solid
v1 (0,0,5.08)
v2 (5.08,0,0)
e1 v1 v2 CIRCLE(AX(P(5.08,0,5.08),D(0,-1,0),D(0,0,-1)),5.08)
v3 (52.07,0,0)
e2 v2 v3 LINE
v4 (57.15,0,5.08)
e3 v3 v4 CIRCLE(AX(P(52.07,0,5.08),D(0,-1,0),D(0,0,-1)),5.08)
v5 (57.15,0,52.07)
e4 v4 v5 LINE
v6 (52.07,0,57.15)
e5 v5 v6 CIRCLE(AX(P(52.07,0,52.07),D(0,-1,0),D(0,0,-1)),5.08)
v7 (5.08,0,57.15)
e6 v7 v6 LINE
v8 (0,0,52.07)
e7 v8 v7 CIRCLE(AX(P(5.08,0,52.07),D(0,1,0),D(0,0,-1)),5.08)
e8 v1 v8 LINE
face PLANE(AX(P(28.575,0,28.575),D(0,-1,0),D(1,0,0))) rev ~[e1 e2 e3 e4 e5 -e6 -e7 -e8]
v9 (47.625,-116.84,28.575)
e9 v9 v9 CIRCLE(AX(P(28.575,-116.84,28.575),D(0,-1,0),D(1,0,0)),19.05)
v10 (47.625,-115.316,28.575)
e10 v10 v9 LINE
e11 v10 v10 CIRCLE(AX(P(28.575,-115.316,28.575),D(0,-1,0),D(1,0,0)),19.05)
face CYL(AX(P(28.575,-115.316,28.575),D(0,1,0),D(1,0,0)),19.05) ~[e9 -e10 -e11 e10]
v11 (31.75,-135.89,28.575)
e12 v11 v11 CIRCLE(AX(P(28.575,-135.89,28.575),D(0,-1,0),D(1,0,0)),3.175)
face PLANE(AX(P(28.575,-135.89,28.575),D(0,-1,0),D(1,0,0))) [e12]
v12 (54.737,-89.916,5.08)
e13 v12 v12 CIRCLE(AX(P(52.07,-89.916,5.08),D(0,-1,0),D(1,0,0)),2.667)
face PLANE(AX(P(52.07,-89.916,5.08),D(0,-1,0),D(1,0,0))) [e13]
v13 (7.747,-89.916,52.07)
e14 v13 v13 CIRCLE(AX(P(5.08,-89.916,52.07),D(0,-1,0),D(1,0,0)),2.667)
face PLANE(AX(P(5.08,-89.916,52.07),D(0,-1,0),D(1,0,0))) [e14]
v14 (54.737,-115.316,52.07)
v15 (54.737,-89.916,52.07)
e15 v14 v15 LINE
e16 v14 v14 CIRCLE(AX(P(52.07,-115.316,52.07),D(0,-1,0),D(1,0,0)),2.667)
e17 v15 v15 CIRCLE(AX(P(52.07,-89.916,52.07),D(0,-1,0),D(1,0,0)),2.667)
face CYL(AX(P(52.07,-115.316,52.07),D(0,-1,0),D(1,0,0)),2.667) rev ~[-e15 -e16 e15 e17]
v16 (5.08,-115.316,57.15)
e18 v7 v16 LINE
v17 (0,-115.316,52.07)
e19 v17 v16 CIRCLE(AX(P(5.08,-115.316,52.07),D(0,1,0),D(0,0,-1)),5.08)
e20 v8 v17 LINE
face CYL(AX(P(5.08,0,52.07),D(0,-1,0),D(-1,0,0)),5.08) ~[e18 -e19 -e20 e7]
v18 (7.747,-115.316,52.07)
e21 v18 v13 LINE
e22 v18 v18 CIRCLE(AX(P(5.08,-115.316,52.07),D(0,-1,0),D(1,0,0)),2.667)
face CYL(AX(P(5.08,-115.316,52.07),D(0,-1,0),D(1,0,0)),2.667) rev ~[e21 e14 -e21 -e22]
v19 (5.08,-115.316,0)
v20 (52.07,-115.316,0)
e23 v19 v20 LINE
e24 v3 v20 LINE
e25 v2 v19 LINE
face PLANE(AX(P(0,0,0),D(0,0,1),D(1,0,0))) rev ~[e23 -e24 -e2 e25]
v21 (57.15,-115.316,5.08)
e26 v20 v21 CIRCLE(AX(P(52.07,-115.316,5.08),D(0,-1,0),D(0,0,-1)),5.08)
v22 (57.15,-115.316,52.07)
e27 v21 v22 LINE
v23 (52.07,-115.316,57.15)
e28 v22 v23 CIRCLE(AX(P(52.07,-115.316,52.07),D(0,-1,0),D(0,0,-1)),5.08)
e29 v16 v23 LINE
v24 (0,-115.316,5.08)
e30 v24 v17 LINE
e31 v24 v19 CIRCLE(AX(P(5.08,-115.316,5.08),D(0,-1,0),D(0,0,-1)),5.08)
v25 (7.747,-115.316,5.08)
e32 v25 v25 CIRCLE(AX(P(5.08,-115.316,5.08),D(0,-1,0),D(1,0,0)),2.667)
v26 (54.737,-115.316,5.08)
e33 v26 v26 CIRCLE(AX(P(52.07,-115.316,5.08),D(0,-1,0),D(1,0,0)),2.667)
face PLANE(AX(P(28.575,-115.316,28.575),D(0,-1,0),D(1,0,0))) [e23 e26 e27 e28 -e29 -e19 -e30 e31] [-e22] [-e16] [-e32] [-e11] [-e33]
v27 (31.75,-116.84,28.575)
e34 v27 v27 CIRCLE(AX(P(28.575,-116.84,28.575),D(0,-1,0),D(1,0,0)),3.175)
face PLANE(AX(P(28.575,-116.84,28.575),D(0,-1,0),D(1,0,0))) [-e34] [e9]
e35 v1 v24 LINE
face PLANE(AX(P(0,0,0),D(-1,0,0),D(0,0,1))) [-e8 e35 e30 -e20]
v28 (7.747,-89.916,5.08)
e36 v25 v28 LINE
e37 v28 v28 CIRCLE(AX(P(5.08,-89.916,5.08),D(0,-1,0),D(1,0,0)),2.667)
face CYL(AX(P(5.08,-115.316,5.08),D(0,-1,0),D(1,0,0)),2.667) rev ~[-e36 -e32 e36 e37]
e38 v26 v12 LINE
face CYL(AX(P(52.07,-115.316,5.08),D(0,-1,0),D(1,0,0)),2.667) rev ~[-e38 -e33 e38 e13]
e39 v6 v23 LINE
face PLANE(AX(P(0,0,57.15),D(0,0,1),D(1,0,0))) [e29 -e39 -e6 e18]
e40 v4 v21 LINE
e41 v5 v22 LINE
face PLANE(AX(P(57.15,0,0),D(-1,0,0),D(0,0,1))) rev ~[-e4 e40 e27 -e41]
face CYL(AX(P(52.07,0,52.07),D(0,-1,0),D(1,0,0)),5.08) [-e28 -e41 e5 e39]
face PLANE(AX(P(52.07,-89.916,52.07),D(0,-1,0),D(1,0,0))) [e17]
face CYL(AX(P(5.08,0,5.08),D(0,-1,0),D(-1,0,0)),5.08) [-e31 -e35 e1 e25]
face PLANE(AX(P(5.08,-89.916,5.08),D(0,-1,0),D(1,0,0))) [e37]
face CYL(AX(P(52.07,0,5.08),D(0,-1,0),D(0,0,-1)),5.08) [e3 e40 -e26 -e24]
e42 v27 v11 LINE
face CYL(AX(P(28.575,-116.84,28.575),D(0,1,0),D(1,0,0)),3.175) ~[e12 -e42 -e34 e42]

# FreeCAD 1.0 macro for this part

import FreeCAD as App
import Part
import Sketcher
Q = App.Units.Quantity


def edges_at(feature, points):
    """Names of the edges that pass closest to the given points."""
    edges = feature.Shape.Edges
    near = lambda p: min(range(len(edges)), key=lambda i: edges[i].distToShape(Part.Vertex(*p))[0])
    return sorted({f"Edge{near(p) + 1}" for p in points})


def add_polygon(sketch, points):
    """Adds a closed chain of lines whose ends are joined by coincident constraints."""
    first, n = sketch.GeometryCount, len(points)
    for a, b in zip(points, points[1:] + points[:1]):
        sketch.addGeometry(Part.LineSegment(App.Vector(*a, 0), App.Vector(*b, 0)), False)
    for i in range(n):
        sketch.addConstraint(Sketcher.Constraint("Coincident", first + i, 2, first + (i + 1) % n, 1))

doc = App.newDocument("Part")
body = doc.addObject("PartDesign::Body", "Body")

# Sketch on XZ plane
sketch1 = doc.addObject("Sketcher::SketchObject", "Sketch")
body.addObject(sketch1)
sketch1.AttachmentSupport = (doc.XZ_Plane, [""])
sketch1.MapMode = "FlatFace"
add_polygon(sketch1, [(0, 57), (0, 0), (57, 0), (57, 57)])  # lines 0-3
sketch1.addConstraint([
    Sketcher.Constraint("Vertical", 0),
    Sketcher.Constraint("Horizontal", 1),
    Sketcher.Constraint("Vertical", 2),
    Sketcher.Constraint("Horizontal", 3),
    Sketcher.Constraint("Coincident", 0, 2, -1, 1),
    Sketcher.Constraint("Equal", 3, 0),
    Sketcher.Constraint("DistanceX", 1, 1, 1, 2, Q("2.25 in")),
])
pad1 = doc.addObject("PartDesign::Pad", "Pad")
body.addObject(pad1)
pad1.Profile = sketch1
pad1.Length = Q("4.54 in")
doc.recompute()

fillet = doc.addObject("PartDesign::Fillet", "Fillet")
body.addObject(fillet)
fillet.Base = (pad1, edges_at(pad1, [
    (57.15, -57.658, 57.15),
    (57.15, -57.658, 0),
    (0, -57.658, 0),
    (0, -57.658, 57.15),
]))
fillet.Radius = Q("0.2 in")

# Sketch on XZ plane
sketch2 = doc.addObject("Sketcher::SketchObject", "Sketch001")
body.addObject(sketch2)
sketch2.AttachmentSupport = (doc.XZ_Plane, [""])
sketch2.MapMode = "FlatFace"
sketch2.AttachmentOffset = App.Placement(App.Vector(0, 0, 4.54 * 25.4), App.Rotation())
sketch2.addGeometry(Part.Circle(App.Vector(29, 29, 0), App.Vector(0, 0, 1), 19), False)
sketch2.addConstraint([
    Sketcher.Constraint("Diameter", 0, Q("1.5 in")),
    Sketcher.Constraint("DistanceX", -1, 1, 0, 3, Q("1.125 in")),
    Sketcher.Constraint("DistanceY", -1, 1, 0, 3, Q("1.125 in")),
])
pad2 = doc.addObject("PartDesign::Pad", "Pad001")
body.addObject(pad2)
pad2.Profile = sketch2
pad2.Length = Q("0.06 in")

# Sketch on XZ plane
sketch3 = doc.addObject("Sketcher::SketchObject", "Sketch002")
body.addObject(sketch3)
sketch3.AttachmentSupport = (doc.XZ_Plane, [""])
sketch3.MapMode = "FlatFace"
sketch3.AttachmentOffset = App.Placement(App.Vector(0, 0, 4.6 * 25.4), App.Rotation())
sketch3.addGeometry(Part.Circle(App.Vector(28.6, 28.6, 0), App.Vector(0, 0, 1), 3.2), False)
sketch3.addConstraint([
    Sketcher.Constraint("Diameter", 0, Q("0.25 in")),
    Sketcher.Constraint("DistanceX", -1, 1, 0, 3, Q("1.125 in")),
    Sketcher.Constraint("DistanceY", -1, 1, 0, 3, Q("1.125 in")),
])
pad3 = doc.addObject("PartDesign::Pad", "Pad002")
body.addObject(pad3)
pad3.Profile = sketch3
pad3.Length = Q("0.75 in")

# Sketch on XZ plane
sketch4 = doc.addObject("Sketcher::SketchObject", "Sketch003")
body.addObject(sketch4)
sketch4.AttachmentSupport = (doc.XZ_Plane, [""])
sketch4.MapMode = "FlatFace"
sketch4.AttachmentOffset = App.Placement(App.Vector(0, 0, 4.54 * 25.4), App.Rotation())
sketch4.addGeometry([
    Part.Circle(App.Vector(52.1, 52.1, 0), App.Vector(0, 0, 1), 2.7),
    Part.Circle(App.Vector(5.1, 52.1, 0), App.Vector(0, 0, 1), 2.7),
    Part.Circle(App.Vector(52.1, 5.1, 0), App.Vector(0, 0, 1), 2.7),
    Part.Circle(App.Vector(5.1, 5.1, 0), App.Vector(0, 0, 1), 2.7),
], False)
sketch4.addConstraint([
    Sketcher.Constraint("Equal", 0, 1),
    Sketcher.Constraint("Equal", 1, 2),
    Sketcher.Constraint("Equal", 2, 3),
    Sketcher.Constraint("Horizontal", 0, 3, 1, 3),
    Sketcher.Constraint("Horizontal", 2, 3, 3, 3),
    Sketcher.Constraint("Vertical", 0, 3, 2, 3),
    Sketcher.Constraint("Vertical", 1, 3, 3, 3),
    Sketcher.Constraint("Diameter", 0, Q("0.21 in")),
    Sketcher.Constraint("DistanceX", -1, 1, 1, 3, Q("0.2 in")),
    Sketcher.Constraint("DistanceY", -1, 1, 2, 3, Q("0.2 in")),
    Sketcher.Constraint("DistanceX", -1, 1, 0, 3, Q("2.05 in")),
    Sketcher.Constraint("DistanceY", -1, 1, 0, 3, Q("2.05 in")),
])
pocket1 = doc.addObject("PartDesign::Pocket", "Pocket")
body.addObject(pocket1)
pocket1.Profile = sketch4
pocket1.Length = Q("1 in")

doc.recompute()
